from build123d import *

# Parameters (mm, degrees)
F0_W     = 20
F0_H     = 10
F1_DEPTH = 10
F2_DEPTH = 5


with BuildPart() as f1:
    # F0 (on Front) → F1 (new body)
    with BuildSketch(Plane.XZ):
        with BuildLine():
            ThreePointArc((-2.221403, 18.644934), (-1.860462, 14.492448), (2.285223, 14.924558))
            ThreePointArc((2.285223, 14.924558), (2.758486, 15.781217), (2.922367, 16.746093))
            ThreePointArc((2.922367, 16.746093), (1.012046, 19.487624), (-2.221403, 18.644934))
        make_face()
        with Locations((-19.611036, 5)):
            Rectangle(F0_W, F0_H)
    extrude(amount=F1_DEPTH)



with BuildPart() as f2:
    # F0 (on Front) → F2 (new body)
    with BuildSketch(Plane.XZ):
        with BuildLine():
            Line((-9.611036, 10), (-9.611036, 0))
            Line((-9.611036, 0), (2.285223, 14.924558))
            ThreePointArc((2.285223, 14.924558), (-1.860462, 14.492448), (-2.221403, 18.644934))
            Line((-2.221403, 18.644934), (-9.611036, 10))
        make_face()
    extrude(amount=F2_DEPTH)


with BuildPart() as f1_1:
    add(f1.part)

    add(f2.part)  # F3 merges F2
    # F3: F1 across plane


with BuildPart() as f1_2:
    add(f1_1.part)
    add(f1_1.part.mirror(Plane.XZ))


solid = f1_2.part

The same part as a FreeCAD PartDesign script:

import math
import FreeCAD as App
import Part
import Sketcher
from FreeCAD import Vector
Q = App.Units.Quantity


def add_polygon(sketch, points):
    """Adds a closed chain of lines whose ends are joined by coincident constraints."""
    first, n = sketch.GeometryCount, len(points)
    for a, b in zip(points, points[1:] + points[:1]):
        sketch.addGeometry(Part.LineSegment(App.Vector(*a, 0), App.Vector(*b, 0)), False)
    for i in range(n):
        sketch.addConstraint(Sketcher.Constraint("Coincident", first + i, 2, first + (i + 1) % n, 1))

doc = App.newDocument("Part")
body = doc.addObject("PartDesign::Body", "Body")
body.AllowCompound = True

sketch1 = doc.addObject("Sketcher::SketchObject", "Sketch")
body.addObject(sketch1)
sketch1.AttachmentSupport = (doc.XZ_Plane, [""])
sketch1.MapMode = "FlatFace"
sketch1.addGeometry(Part.ArcOfCircle(Part.Circle(Vector(0, 16.7, 0), Vector(0, 0, 1), 2.9), math.radians(139), math.radians(321)), False)
sketch1.addGeometry(Part.ArcOfCircle(Part.Circle(Vector(0, 16.7, 0), Vector(0, 0, 1), 2.9), math.radians(-39), math.radians(0)), False)
sketch1.addGeometry(Part.ArcOfCircle(Part.Circle(Vector(0, 16.7, 0), Vector(0, 0, 1), 2.9), math.radians(0), math.radians(139)), False)
add_polygon(sketch1, [(-29.6, 10), (-29.6, 0), (-9.6, 0), (-9.6, 10)])
sketch1.addConstraint([
    Sketcher.Constraint("Tangent", 0, 2, 1, 1),
    Sketcher.Constraint("Tangent", 1, 2, 2, 1),
    Sketcher.Constraint("Tangent", 2, 2, 0, 1),
    Sketcher.Constraint("Vertical", 3),
    Sketcher.Constraint("Horizontal", 4),
    Sketcher.Constraint("Vertical", 5),
    Sketcher.Constraint("Horizontal", 6),
    Sketcher.Constraint("PointOnObject", 0, 3, -2),
    Sketcher.Constraint("PointOnObject", 3, 2, -1),
    Sketcher.Constraint("Horizontal", 2, 3, 1, 2),
    Sketcher.Constraint("DistanceX", 4, 1, 4, 2, Q("20 mm")),
    Sketcher.Constraint("DistanceY", 3, 2, 3, 1, Q("10 mm")),
    Sketcher.Constraint("Radius", 1, Q("2.922369 mm")),
    Sketcher.Constraint("DistanceX", 2, 2, 1, 3, Q("2.221401 mm")),
    Sketcher.Constraint("DistanceX", 3, 2, 0, 2, Q("31.896259 mm")),
    Sketcher.Constraint("DistanceY", -1, 1, 0, 3, Q("16.746092 mm")),
    Sketcher.Constraint("DistanceX", -1, 1, 0, 2, Q("2.285223 mm")),
])
pad1 = doc.addObject("PartDesign::Pad", "Pad")
body.addObject(pad1)
pad1.Profile = sketch1
pad1.Length = 10
body2 = doc.addObject("PartDesign::Body", "Body001")

sketch2 = doc.addObject("Sketcher::SketchObject", "Sketch001")
body2.addObject(sketch2)
sketch2.AttachmentSupport = (doc.getObject("XZ_Plane001"), [""])
sketch2.MapMode = "FlatFace"
sketch2.addGeometry([
    Part.LineSegment(Vector(-9.6, 10, 0), Vector(-9.6, 0, 0)),
    Part.LineSegment(Vector(-9.6, 0, 0), Vector(2.3, 14.9, 0)),
    Part.ArcOfCircle(Part.Circle(Vector(0, 16.7, 0), Vector(0, 0, 1), 2.9), math.radians(139), math.radians(321)),
    Part.LineSegment(Vector(-2.2, 18.6, 0), Vector(-9.6, 10, 0)),
], False)
sketch2.addConstraint([
    Sketcher.Constraint("Coincident", 0, 2, 1, 1),
    Sketcher.Constraint("Tangent", 1, 2, 2, 2),
    Sketcher.Constraint("Tangent", 2, 1, 3, 1),
    Sketcher.Constraint("Coincident", 3, 2, 0, 1),
    Sketcher.Constraint("Vertical", 0),
    Sketcher.Constraint("PointOnObject", 2, 3, -2),
    Sketcher.Constraint("PointOnObject", 0, 2, -1),
    Sketcher.Constraint("DistanceY", 0, 2, 0, 1, Q("10 mm")),
    Sketcher.Constraint("Radius", 2, Q("2.922367 mm")),
    Sketcher.Constraint("DistanceX", 0, 2, 1, 2, Q("11.896259 mm")),
    Sketcher.Constraint("DistanceY", 2, 3, 2, 1, Q("1.898842 mm")),
])
pad2 = doc.addObject("PartDesign::Pad", "Pad001")
body2.addObject(pad2)
pad2.Profile = sketch2
pad2.Length = 5
doc.recompute()

boolean = doc.addObject("PartDesign::Boolean", "Boolean")
body.addObject(boolean)
boolean.Type = "Fuse"
boolean.addObjects([body2])
body3 = doc.addObject("PartDesign::Body", "Body002")
doc.recompute()

body3.BaseFeature = body
doc.recompute()

mirroring = doc.addObject("Part::Mirroring", "Mirroring")
mirroring.Source = body
mirroring.Base = Vector(0, 0, 0)
mirroring.Normal = Vector(0, -1, 0)
body4 = doc.addObject("PartDesign::Body", "Body003")
body4.BaseFeature = mirroring
boolean2 = doc.addObject("PartDesign::Boolean", "Boolean001")
body3.addObject(boolean2)
boolean2.Type = "Fuse"
boolean2.addObjects([body4])
doc.recompute()
mirroring.Visibility = False

doc.recompute()
